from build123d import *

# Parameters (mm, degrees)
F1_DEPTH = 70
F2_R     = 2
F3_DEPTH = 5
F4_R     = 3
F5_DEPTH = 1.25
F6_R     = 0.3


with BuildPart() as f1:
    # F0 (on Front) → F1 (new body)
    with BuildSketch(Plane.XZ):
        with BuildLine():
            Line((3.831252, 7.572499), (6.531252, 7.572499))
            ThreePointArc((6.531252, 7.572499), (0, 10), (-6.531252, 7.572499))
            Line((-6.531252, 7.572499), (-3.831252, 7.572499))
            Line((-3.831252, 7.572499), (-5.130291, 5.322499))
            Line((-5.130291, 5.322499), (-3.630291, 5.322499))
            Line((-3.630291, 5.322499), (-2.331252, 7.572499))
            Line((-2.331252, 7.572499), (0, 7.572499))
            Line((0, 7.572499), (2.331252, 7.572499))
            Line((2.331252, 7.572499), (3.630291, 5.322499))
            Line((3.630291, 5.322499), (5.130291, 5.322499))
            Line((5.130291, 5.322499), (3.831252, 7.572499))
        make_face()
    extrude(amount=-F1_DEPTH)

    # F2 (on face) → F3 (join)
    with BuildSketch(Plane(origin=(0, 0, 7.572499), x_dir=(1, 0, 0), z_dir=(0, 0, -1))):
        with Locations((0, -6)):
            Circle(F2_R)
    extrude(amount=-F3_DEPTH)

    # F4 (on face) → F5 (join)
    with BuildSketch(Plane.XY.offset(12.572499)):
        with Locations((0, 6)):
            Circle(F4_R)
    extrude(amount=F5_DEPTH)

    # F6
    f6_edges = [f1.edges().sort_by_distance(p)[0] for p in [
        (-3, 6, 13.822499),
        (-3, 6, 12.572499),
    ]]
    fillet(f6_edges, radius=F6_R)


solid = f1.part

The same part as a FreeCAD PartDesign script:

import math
import FreeCAD as App
import Part
import Sketcher
from FreeCAD import Vector
Q = App.Units.Quantity


def edges_at(feature, points):
    """Names of the edges that pass closest to the given points."""
    edges = feature.Shape.Edges
    near = lambda p: min(range(len(edges)), key=lambda i: edges[i].distToShape(Part.Vertex(*p))[0])
    return sorted({f"Edge{near(p) + 1}" for p in points})

doc = App.newDocument("Part")
body = doc.addObject("PartDesign::Body", "Body")

# Sketch on XZ plane
sketch1 = doc.addObject("Sketcher::SketchObject", "Sketch")
body.addObject(sketch1)
sketch1.AttachmentSupport = (doc.XZ_Plane, [""])
sketch1.MapMode = "FlatFace"
sketch1.addGeometry([
    Part.LineSegment(Vector(3.831252, 7.572499, 0), Vector(6.531252, 7.572499, 0)),  # 0
    Part.ArcOfCircle(Part.Circle(Vector(0, 0.000001, 0), Vector(0, 0, 1), 9.999999), math.radians(49.222349), math.radians(130.777651)),  # 1
    Part.LineSegment(Vector(-6.531252, 7.572499, 0), Vector(-3.831252, 7.572499, 0)),  # 2
    Part.LineSegment(Vector(-3.831252, 7.572499, 0), Vector(-5.130291, 5.322499, 0)),  # 3
    Part.LineSegment(Vector(-5.130291, 5.322499, 0), Vector(-3.630291, 5.322499, 0)),  # 4
    Part.LineSegment(Vector(-3.630291, 5.322499, 0), Vector(-2.331252, 7.572499, 0)),  # 5
    Part.LineSegment(Vector(-2.331252, 7.572499, 0), Vector(2.331252, 7.572499, 0)),  # 6
    Part.LineSegment(Vector(2.331252, 7.572499, 0), Vector(3.630291, 5.322499, 0)),  # 7
    Part.LineSegment(Vector(3.630291, 5.322499, 0), Vector(5.130291, 5.322499, 0)),  # 8
    Part.LineSegment(Vector(5.130291, 5.322499, 0), Vector(3.831252, 7.572499, 0)),  # 9
], False)
sketch1.addConstraint([
    Sketcher.Constraint("Coincident", 0, 2, 1, 1),
    Sketcher.Constraint("Coincident", 1, 2, 2, 1),
    Sketcher.Constraint("Coincident", 2, 2, 3, 1),
    Sketcher.Constraint("Coincident", 3, 2, 4, 1),
    Sketcher.Constraint("Coincident", 4, 2, 5, 1),
    Sketcher.Constraint("Coincident", 5, 2, 6, 1),
    Sketcher.Constraint("Coincident", 6, 2, 7, 1),
    Sketcher.Constraint("Coincident", 7, 2, 8, 1),
    Sketcher.Constraint("Coincident", 8, 2, 9, 1),
    Sketcher.Constraint("Coincident", 9, 2, 0, 1),
    Sketcher.Constraint("Horizontal", 0),
    Sketcher.Constraint("Horizontal", 2),
    Sketcher.Constraint("Horizontal", 4),
    Sketcher.Constraint("Horizontal", 6),
    Sketcher.Constraint("Horizontal", 8),
    Sketcher.Constraint("Coincident", 1, 3, -1, 1),
    Sketcher.Constraint("Symmetric", 4, 2, 7, 2, -2),
    Sketcher.Constraint("Symmetric", 2, 2, 9, 2, -2),
    Sketcher.Constraint("Parallel", 3, 5),
    Sketcher.Constraint("Parallel", 7, 9),
    Sketcher.Constraint("Horizontal", 2, 2, 5, 2),
    Sketcher.Constraint("Equal", 4, 8),
    Sketcher.Constraint("Radius", 1, Q("9.999999 mm")),
    Sketcher.Constraint("Angle", 3, Q("-120.000017 deg")),
    Sketcher.Constraint("DistanceX", 0, 1, 0, 2, Q("2.7 mm")),
    Sketcher.Constraint("DistanceX", 4, 1, 4, 2, Q("1.5 mm")),
    Sketcher.Constraint("DistanceY", 3, 2, 2, 2, Q("2.25 mm")),
    Sketcher.Constraint("DistanceY", -1, 1, 0, 2, Q("7.572499 mm")),
])
pad1 = doc.addObject("PartDesign::Pad", "Pad")
body.addObject(pad1)
pad1.Profile = sketch1
pad1.Length = 70
pad1.Reversed = True

# Sketch on XY plane
sketch2 = doc.addObject("Sketcher::SketchObject", "Sketch001")
body.addObject(sketch2)
sketch2.AttachmentSupport = (doc.XY_Plane, [""])
sketch2.MapMode = "FlatFace"
sketch2.AttachmentOffset = App.Placement(Vector(0, 0, 7.572499), App.Rotation())
sketch2.addGeometry(Part.Circle(Vector(0, 6, 0), Vector(0, 0, 1), 2), False)
sketch2.addConstraint([
    Sketcher.Constraint("PointOnObject", 0, 3, -2),
    Sketcher.Constraint("Diameter", 0, Q("4 mm")),
    Sketcher.Constraint("DistanceY", -1, 1, 0, 3, Q("6 mm")),
])
pad2 = doc.addObject("PartDesign::Pad", "Pad001")
body.addObject(pad2)
pad2.Profile = sketch2
pad2.Length = 5

# Sketch on XY plane
sketch3 = doc.addObject("Sketcher::SketchObject", "Sketch002")
body.addObject(sketch3)
sketch3.AttachmentSupport = (doc.XY_Plane, [""])
sketch3.MapMode = "FlatFace"
sketch3.AttachmentOffset = App.Placement(Vector(0, 0, 12.572499), App.Rotation())
sketch3.addGeometry(Part.Circle(Vector(0, 6, 0), Vector(0, 0, 1), 3), False)
sketch3.addConstraint([
    Sketcher.Constraint("PointOnObject", 0, 3, -2),
    Sketcher.Constraint("Diameter", 0, Q("6 mm")),
    Sketcher.Constraint("DistanceY", -1, 1, 0, 3, Q("6 mm")),
])
pad3 = doc.addObject("PartDesign::Pad", "Pad002")
body.addObject(pad3)
pad3.Profile = sketch3
pad3.Length = 1.25
doc.recompute()

fillet = doc.addObject("PartDesign::Fillet", "Fillet")
body.addObject(fillet)
fillet.Base = (pad3, edges_at(pad3, [(-3, 6, 13.822), (-3, 6, 12.572)]))
fillet.Radius = 0.3

doc.recompute()
